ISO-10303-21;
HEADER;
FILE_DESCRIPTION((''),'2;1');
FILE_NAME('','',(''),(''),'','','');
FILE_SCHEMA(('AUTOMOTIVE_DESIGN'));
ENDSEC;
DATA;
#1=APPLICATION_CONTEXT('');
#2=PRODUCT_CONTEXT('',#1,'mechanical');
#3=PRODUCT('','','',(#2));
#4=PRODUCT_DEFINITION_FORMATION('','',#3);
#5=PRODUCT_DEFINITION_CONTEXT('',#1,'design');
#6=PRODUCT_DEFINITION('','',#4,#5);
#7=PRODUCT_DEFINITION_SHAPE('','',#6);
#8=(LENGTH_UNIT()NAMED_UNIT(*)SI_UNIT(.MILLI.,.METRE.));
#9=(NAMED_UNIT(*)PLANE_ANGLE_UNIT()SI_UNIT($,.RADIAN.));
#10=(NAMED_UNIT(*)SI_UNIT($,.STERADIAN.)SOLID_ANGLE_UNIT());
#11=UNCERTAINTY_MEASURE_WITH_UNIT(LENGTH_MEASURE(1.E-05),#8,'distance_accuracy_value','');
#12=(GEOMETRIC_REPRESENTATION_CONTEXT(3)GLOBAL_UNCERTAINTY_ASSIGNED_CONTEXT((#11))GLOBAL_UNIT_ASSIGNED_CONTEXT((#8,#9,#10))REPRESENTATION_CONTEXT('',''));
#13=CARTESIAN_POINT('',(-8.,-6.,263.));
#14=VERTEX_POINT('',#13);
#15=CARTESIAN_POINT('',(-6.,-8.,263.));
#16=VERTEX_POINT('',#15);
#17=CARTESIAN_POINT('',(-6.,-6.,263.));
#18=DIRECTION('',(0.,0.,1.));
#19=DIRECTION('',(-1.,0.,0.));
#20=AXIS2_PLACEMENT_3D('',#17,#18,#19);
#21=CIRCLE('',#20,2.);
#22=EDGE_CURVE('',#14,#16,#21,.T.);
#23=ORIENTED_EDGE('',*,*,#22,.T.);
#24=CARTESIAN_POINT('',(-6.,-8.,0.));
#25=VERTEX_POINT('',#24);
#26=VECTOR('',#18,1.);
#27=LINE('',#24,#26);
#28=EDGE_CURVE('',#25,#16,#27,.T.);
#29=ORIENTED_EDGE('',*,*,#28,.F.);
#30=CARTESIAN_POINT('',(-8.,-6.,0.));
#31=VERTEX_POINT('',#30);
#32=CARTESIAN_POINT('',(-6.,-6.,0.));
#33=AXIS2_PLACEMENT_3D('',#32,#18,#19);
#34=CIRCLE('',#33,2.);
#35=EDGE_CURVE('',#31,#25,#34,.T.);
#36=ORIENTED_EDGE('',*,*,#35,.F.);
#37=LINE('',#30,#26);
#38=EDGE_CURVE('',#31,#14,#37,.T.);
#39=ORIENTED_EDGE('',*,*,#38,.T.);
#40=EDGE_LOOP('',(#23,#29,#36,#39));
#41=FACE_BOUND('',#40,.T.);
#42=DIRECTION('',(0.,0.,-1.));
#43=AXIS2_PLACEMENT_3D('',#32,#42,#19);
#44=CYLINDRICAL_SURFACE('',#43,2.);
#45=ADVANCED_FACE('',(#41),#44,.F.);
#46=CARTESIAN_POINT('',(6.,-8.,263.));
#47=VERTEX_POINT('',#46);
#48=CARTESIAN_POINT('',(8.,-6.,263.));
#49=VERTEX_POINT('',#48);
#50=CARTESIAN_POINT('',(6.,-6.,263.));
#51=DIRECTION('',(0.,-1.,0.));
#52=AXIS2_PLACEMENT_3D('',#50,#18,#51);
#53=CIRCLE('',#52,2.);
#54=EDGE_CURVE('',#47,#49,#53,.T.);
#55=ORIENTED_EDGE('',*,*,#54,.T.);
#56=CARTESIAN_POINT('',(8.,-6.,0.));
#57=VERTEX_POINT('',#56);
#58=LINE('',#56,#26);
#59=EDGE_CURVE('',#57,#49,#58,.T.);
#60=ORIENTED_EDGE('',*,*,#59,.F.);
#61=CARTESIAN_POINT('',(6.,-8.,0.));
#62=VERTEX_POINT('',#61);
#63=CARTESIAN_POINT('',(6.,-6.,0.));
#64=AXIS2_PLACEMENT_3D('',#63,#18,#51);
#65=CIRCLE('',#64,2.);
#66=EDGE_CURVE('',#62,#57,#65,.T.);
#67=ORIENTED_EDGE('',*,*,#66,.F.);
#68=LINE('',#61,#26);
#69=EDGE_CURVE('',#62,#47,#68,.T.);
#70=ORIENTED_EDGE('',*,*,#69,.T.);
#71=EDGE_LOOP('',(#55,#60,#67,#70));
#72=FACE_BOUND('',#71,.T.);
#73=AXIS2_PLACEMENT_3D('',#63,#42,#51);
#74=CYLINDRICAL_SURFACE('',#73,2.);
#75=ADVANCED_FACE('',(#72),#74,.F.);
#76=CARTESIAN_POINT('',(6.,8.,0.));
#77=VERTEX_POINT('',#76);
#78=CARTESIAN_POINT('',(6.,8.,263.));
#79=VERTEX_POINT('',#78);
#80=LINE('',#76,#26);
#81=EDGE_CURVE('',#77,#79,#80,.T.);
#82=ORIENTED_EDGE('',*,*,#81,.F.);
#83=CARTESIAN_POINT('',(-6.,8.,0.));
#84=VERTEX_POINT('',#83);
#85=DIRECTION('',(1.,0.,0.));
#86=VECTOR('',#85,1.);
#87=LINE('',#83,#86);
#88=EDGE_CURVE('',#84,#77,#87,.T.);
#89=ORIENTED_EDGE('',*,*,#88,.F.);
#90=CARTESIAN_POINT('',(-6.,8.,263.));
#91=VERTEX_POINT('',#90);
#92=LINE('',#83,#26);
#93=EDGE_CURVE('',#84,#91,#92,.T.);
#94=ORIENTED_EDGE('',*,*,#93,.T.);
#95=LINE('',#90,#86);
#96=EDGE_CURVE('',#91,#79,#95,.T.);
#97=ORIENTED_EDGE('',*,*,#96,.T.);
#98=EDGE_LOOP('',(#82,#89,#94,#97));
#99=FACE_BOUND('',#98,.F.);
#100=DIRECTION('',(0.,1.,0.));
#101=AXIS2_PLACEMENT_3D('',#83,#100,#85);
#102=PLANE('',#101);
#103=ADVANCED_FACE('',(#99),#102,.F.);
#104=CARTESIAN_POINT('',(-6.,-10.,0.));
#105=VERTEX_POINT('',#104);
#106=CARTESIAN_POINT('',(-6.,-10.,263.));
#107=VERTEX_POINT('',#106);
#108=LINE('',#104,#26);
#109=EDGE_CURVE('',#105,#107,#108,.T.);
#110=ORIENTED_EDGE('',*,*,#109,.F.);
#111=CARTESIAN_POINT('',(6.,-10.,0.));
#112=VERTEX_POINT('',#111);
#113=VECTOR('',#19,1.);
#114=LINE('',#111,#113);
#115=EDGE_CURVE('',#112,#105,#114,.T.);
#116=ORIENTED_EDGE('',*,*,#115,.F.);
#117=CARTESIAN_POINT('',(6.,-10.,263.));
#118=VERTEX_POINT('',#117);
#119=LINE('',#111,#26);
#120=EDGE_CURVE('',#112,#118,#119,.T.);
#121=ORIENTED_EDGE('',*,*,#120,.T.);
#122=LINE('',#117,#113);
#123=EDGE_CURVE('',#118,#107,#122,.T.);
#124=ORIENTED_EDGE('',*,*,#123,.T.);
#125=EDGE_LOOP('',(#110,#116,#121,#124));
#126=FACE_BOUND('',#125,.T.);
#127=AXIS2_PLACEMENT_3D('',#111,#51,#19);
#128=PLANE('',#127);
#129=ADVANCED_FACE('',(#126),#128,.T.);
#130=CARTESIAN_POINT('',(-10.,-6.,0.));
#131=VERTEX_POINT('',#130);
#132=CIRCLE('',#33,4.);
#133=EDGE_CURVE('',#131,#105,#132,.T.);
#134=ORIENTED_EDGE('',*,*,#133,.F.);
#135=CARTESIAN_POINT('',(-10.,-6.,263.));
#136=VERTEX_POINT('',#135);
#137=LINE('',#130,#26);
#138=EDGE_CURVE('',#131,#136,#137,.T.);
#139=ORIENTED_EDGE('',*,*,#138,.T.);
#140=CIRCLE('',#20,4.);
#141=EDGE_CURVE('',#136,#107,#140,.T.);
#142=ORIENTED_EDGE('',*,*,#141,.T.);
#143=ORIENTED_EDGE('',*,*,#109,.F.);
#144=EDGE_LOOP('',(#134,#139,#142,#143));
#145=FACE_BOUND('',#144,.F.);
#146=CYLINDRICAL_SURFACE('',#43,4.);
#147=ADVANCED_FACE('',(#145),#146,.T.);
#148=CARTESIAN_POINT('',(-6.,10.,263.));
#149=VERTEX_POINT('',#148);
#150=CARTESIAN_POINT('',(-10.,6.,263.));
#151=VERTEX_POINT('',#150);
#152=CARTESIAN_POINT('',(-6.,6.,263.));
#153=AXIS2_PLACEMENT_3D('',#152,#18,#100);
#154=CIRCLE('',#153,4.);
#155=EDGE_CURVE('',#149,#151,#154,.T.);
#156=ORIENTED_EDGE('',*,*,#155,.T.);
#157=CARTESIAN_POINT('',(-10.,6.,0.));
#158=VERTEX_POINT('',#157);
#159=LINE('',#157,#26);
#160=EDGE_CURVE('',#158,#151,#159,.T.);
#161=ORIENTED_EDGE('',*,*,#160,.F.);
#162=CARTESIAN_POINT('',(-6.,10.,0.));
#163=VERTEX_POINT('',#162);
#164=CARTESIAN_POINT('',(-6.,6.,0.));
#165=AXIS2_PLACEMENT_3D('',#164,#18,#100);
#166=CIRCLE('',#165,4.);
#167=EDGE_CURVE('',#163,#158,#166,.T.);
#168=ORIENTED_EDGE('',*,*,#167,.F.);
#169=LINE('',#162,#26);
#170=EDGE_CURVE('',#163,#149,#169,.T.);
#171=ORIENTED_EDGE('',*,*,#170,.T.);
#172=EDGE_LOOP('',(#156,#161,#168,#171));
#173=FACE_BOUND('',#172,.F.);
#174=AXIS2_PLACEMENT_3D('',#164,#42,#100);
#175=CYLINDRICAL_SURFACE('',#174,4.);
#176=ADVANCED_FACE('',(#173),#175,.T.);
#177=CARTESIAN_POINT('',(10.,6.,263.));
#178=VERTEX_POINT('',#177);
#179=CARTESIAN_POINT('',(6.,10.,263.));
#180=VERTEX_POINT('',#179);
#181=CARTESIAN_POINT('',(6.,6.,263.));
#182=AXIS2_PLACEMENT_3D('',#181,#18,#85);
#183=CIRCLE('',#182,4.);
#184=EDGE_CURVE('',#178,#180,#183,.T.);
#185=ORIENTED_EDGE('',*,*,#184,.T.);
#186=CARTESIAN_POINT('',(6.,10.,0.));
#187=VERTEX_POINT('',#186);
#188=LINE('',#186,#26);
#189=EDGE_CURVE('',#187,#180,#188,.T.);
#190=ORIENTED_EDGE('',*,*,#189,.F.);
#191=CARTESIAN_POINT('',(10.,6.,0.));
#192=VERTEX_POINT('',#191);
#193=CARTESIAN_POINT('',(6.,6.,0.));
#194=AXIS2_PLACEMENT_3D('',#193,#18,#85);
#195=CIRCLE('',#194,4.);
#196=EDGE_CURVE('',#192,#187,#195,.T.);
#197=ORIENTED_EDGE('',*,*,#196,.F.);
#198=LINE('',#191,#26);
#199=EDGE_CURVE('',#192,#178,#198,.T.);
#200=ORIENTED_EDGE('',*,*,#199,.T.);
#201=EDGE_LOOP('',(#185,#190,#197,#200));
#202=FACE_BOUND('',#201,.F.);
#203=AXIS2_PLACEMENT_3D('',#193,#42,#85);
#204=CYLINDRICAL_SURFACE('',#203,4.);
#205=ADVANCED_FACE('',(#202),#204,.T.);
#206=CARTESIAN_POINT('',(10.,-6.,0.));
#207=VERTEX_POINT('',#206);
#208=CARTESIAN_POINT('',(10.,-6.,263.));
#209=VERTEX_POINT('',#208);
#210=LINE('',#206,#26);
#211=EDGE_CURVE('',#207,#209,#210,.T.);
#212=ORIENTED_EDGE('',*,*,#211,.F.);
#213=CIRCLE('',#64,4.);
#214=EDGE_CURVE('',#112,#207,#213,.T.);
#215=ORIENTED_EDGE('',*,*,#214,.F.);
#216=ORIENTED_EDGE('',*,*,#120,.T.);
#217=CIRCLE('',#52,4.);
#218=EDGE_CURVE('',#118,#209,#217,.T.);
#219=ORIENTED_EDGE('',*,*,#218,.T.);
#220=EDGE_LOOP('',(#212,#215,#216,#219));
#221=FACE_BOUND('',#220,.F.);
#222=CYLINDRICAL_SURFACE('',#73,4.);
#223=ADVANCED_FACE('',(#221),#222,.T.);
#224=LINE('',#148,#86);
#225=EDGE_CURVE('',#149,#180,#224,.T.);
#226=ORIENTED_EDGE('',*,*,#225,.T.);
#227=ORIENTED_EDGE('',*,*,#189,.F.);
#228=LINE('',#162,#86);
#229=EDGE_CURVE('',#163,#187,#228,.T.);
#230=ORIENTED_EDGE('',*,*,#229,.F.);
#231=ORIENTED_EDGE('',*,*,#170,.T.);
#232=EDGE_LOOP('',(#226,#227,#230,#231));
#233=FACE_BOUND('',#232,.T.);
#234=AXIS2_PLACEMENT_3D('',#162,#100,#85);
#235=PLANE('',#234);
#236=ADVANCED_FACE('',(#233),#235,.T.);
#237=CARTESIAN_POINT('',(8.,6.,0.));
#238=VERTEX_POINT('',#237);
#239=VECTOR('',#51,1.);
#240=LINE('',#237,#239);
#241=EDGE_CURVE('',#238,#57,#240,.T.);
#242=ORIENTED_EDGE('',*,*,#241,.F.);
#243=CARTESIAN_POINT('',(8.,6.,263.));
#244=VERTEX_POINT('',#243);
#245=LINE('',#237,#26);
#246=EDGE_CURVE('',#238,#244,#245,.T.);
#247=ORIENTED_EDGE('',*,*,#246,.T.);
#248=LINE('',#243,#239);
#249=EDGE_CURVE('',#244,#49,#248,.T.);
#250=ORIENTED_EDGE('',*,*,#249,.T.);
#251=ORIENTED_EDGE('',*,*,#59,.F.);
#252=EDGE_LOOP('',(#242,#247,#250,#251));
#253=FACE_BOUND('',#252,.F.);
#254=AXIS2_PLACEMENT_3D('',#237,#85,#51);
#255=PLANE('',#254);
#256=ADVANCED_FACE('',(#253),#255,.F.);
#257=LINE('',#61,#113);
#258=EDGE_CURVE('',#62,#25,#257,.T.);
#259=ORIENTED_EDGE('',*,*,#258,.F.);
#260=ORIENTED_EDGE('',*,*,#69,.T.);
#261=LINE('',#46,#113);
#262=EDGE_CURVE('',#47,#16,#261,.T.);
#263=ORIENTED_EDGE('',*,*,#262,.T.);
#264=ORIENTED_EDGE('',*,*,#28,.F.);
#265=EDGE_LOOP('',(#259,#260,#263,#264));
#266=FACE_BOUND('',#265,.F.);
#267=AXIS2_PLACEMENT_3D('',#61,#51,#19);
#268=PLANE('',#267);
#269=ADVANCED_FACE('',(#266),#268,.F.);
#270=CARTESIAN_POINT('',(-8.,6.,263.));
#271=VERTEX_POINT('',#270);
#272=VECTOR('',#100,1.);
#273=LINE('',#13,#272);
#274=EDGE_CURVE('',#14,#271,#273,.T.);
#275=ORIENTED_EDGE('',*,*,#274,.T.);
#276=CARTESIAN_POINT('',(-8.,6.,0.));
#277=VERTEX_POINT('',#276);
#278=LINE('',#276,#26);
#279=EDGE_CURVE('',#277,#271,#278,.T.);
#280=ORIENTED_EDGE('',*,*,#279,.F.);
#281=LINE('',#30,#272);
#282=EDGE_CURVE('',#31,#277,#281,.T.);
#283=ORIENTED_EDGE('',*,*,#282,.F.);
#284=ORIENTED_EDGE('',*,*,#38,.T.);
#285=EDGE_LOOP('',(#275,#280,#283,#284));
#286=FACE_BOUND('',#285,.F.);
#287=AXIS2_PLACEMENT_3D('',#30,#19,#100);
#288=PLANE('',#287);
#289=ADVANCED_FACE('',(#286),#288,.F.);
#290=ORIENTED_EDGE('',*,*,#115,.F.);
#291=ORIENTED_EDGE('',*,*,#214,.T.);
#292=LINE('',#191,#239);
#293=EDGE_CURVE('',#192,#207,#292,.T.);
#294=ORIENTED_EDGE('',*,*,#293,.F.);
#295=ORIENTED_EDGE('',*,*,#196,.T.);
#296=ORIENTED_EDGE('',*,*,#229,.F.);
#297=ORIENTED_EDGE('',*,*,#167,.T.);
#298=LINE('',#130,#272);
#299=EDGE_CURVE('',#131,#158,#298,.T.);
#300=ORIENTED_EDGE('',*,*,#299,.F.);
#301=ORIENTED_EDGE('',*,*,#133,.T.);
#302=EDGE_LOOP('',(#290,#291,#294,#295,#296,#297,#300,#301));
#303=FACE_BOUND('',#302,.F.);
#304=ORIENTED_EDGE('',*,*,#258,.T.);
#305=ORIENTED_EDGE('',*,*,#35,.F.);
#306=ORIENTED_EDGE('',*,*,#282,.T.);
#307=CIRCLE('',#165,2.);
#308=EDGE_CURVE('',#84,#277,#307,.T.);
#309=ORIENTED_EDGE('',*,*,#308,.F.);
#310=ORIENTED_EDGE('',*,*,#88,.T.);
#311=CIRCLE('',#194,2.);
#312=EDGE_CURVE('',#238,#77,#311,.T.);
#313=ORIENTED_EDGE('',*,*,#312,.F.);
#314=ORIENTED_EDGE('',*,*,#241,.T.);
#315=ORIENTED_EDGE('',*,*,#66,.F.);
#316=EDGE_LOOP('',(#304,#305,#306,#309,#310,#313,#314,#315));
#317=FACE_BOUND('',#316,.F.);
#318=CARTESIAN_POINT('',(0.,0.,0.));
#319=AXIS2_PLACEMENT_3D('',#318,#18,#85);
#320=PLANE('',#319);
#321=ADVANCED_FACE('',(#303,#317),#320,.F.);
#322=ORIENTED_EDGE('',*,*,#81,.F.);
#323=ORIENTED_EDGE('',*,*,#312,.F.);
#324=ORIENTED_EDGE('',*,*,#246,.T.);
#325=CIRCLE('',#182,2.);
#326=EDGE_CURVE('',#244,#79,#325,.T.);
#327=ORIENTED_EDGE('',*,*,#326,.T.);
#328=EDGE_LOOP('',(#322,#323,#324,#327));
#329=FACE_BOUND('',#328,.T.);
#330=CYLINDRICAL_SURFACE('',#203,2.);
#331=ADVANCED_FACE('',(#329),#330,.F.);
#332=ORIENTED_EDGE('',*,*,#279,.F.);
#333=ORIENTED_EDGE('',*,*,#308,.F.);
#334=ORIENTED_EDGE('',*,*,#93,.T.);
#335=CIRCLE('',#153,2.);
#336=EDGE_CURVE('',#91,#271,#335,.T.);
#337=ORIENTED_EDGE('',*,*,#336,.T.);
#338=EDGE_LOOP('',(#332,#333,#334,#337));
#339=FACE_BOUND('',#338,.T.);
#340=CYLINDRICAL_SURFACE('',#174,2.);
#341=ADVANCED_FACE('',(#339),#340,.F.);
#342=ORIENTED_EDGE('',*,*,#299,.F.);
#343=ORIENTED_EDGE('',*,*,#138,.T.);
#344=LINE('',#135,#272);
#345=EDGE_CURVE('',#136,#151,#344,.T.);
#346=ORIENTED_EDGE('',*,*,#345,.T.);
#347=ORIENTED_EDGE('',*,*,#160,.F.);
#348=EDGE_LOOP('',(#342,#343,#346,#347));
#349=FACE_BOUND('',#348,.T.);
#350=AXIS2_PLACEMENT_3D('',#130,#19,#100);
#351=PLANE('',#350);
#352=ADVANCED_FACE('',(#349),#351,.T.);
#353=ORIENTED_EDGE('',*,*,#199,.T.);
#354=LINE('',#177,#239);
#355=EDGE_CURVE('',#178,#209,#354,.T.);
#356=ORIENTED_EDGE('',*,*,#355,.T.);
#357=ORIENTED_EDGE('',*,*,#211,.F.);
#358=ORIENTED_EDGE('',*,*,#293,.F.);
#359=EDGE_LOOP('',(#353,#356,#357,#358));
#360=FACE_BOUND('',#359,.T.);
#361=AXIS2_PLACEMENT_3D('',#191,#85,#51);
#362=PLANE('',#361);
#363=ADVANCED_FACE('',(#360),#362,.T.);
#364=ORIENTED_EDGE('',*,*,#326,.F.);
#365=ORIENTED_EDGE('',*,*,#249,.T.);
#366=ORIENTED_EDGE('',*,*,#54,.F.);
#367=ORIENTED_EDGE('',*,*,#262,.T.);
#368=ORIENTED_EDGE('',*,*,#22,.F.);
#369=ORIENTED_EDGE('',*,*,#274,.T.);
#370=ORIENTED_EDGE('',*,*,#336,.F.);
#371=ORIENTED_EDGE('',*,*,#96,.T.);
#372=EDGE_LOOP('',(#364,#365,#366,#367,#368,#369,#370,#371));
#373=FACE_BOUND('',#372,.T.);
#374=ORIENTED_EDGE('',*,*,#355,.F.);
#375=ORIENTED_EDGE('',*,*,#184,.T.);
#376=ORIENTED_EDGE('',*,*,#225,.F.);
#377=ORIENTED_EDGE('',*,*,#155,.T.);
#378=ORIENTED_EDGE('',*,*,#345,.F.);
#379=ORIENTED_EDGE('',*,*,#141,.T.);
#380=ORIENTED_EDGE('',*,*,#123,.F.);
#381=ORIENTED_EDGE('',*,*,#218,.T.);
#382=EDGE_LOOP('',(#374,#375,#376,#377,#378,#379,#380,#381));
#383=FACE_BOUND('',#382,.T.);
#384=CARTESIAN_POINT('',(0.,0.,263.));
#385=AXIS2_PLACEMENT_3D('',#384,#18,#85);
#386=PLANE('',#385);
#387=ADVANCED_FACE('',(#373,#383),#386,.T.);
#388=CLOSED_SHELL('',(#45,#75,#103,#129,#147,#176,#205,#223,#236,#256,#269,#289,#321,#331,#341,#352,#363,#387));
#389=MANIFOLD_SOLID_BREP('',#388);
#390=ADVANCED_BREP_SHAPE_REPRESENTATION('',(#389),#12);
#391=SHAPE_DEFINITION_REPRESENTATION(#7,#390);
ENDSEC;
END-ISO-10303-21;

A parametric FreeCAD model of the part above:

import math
import FreeCAD as App
import Part
import Sketcher

V = App.Vector

doc = App.newDocument("Part")
body = doc.addObject("PartDesign::Body", "Body")

sketch1 = body.newObject("Sketcher::SketchObject", "Sketch")
sketch1.AttachmentSupport = (doc.getObject("XY_Plane"), [""])
sketch1.MapMode = "FlatFace"
sketch1.addGeometry(Part.LineSegment(V(-10, 6, 0), V(-10, -6, 0)), False)
sketch1.addGeometry(Part.ArcOfCircle(Part.Circle(V(-6, -6, 0), V(0, 0, 1), 4), math.radians(180), math.radians(270)), False)
sketch1.addGeometry(Part.LineSegment(V(-6, -10, 0), V(6, -10, 0)), False)
sketch1.addGeometry(Part.ArcOfCircle(Part.Circle(V(6, -6, 0), V(0, 0, 1), 4), math.radians(-90), math.radians(0)), False)
sketch1.addGeometry(Part.LineSegment(V(10, -6, 0), V(10, 6, 0)), False)
sketch1.addGeometry(Part.ArcOfCircle(Part.Circle(V(6, 6, 0), V(0, 0, 1), 4), math.radians(0), math.radians(90)), False)
sketch1.addGeometry(Part.LineSegment(V(6, 10, 0), V(-6, 10, 0)), False)
sketch1.addGeometry(Part.ArcOfCircle(Part.Circle(V(-6, 6, 0), V(0, 0, 1), 4), math.radians(90), math.radians(180)), False)
sketch1.addGeometry(Part.ArcOfCircle(Part.Circle(V(-6, 6, 0), V(0, 0, 1), 2), math.radians(90), math.radians(180)), False)
sketch1.addGeometry(Part.LineSegment(V(-6, 8, 0), V(6, 8, 0)), False)
sketch1.addGeometry(Part.ArcOfCircle(Part.Circle(V(6, 6, 0), V(0, 0, 1), 2), math.radians(0), math.radians(90)), False)
sketch1.addGeometry(Part.LineSegment(V(8, 6, 0), V(8, -6, 0)), False)
sketch1.addGeometry(Part.ArcOfCircle(Part.Circle(V(6, -6, 0), V(0, 0, 1), 2), math.radians(-90), math.radians(0)), False)
sketch1.addGeometry(Part.LineSegment(V(6, -8, 0), V(-6, -8, 0)), False)
sketch1.addGeometry(Part.ArcOfCircle(Part.Circle(V(-6, -6, 0), V(0, 0, 1), 2), math.radians(180), math.radians(270)), False)
sketch1.addGeometry(Part.LineSegment(V(-8, -6, 0), V(-8, 6, 0)), False)
sketch1.addConstraint(Sketcher.Constraint("Tangent", 0, 2, 1, 1))
sketch1.addConstraint(Sketcher.Constraint("Tangent", 1, 2, 2, 1))
sketch1.addConstraint(Sketcher.Constraint("Tangent", 2, 2, 3, 1))
sketch1.addConstraint(Sketcher.Constraint("Tangent", 3, 2, 4, 1))
sketch1.addConstraint(Sketcher.Constraint("Tangent", 4, 2, 5, 1))
sketch1.addConstraint(Sketcher.Constraint("Tangent", 5, 2, 6, 1))
sketch1.addConstraint(Sketcher.Constraint("Tangent", 6, 2, 7, 1))
sketch1.addConstraint(Sketcher.Constraint("Tangent", 7, 2, 0, 1))
sketch1.addConstraint(Sketcher.Constraint("Tangent", 8, 1, 9, 1))
sketch1.addConstraint(Sketcher.Constraint("Tangent", 9, 2, 10, 2))
sketch1.addConstraint(Sketcher.Constraint("Tangent", 10, 1, 11, 1))
sketch1.addConstraint(Sketcher.Constraint("Tangent", 11, 2, 12, 2))
sketch1.addConstraint(Sketcher.Constraint("Tangent", 12, 1, 13, 1))
sketch1.addConstraint(Sketcher.Constraint("Tangent", 13, 2, 14, 2))
sketch1.addConstraint(Sketcher.Constraint("Tangent", 14, 1, 15, 1))
sketch1.addConstraint(Sketcher.Constraint("Tangent", 15, 2, 8, 2))
sketch1.addConstraint(Sketcher.Constraint("Vertical", 0))
sketch1.addConstraint(Sketcher.Constraint("Horizontal", 2))
sketch1.addConstraint(Sketcher.Constraint("Vertical", 4))
sketch1.addConstraint(Sketcher.Constraint("Horizontal", 6))
sketch1.addConstraint(Sketcher.Constraint("Horizontal", 9))
sketch1.addConstraint(Sketcher.Constraint("Vertical", 11))
sketch1.addConstraint(Sketcher.Constraint("Horizontal", 13))
sketch1.addConstraint(Sketcher.Constraint("Vertical", 15))
sketch1.addConstraint(Sketcher.Constraint("Coincident", 8, 3, 7, 3))
sketch1.addConstraint(Sketcher.Constraint("Coincident", 10, 3, 5, 3))
sketch1.addConstraint(Sketcher.Constraint("Coincident", 12, 3, 3, 3))
sketch1.addConstraint(Sketcher.Constraint("Equal", 1, 3))
sketch1.addConstraint(Sketcher.Constraint("Equal", 3, 5))
sketch1.addConstraint(Sketcher.Constraint("Equal", 5, 7))
sketch1.addConstraint(Sketcher.Constraint("Equal", 12, 14))
sketch1.addConstraint(Sketcher.Constraint("Symmetric", 1, 3, 5, 3, -1, 1))
sketch1.addConstraint(Sketcher.Constraint("Equal", 13, 0))
sketch1.addConstraint(Sketcher.Constraint("Radius", 1, 4.0))
sketch1.addConstraint(Sketcher.Constraint("Radius", 8, 2.0))
sketch1.addConstraint(Sketcher.Constraint("DistanceX", 0, 2, -1, 1, 10.0))
pad1 = body.newObject("PartDesign::Pad", "Pad")
pad1.Profile = sketch1
pad1.Length = 263

doc.recompute()
